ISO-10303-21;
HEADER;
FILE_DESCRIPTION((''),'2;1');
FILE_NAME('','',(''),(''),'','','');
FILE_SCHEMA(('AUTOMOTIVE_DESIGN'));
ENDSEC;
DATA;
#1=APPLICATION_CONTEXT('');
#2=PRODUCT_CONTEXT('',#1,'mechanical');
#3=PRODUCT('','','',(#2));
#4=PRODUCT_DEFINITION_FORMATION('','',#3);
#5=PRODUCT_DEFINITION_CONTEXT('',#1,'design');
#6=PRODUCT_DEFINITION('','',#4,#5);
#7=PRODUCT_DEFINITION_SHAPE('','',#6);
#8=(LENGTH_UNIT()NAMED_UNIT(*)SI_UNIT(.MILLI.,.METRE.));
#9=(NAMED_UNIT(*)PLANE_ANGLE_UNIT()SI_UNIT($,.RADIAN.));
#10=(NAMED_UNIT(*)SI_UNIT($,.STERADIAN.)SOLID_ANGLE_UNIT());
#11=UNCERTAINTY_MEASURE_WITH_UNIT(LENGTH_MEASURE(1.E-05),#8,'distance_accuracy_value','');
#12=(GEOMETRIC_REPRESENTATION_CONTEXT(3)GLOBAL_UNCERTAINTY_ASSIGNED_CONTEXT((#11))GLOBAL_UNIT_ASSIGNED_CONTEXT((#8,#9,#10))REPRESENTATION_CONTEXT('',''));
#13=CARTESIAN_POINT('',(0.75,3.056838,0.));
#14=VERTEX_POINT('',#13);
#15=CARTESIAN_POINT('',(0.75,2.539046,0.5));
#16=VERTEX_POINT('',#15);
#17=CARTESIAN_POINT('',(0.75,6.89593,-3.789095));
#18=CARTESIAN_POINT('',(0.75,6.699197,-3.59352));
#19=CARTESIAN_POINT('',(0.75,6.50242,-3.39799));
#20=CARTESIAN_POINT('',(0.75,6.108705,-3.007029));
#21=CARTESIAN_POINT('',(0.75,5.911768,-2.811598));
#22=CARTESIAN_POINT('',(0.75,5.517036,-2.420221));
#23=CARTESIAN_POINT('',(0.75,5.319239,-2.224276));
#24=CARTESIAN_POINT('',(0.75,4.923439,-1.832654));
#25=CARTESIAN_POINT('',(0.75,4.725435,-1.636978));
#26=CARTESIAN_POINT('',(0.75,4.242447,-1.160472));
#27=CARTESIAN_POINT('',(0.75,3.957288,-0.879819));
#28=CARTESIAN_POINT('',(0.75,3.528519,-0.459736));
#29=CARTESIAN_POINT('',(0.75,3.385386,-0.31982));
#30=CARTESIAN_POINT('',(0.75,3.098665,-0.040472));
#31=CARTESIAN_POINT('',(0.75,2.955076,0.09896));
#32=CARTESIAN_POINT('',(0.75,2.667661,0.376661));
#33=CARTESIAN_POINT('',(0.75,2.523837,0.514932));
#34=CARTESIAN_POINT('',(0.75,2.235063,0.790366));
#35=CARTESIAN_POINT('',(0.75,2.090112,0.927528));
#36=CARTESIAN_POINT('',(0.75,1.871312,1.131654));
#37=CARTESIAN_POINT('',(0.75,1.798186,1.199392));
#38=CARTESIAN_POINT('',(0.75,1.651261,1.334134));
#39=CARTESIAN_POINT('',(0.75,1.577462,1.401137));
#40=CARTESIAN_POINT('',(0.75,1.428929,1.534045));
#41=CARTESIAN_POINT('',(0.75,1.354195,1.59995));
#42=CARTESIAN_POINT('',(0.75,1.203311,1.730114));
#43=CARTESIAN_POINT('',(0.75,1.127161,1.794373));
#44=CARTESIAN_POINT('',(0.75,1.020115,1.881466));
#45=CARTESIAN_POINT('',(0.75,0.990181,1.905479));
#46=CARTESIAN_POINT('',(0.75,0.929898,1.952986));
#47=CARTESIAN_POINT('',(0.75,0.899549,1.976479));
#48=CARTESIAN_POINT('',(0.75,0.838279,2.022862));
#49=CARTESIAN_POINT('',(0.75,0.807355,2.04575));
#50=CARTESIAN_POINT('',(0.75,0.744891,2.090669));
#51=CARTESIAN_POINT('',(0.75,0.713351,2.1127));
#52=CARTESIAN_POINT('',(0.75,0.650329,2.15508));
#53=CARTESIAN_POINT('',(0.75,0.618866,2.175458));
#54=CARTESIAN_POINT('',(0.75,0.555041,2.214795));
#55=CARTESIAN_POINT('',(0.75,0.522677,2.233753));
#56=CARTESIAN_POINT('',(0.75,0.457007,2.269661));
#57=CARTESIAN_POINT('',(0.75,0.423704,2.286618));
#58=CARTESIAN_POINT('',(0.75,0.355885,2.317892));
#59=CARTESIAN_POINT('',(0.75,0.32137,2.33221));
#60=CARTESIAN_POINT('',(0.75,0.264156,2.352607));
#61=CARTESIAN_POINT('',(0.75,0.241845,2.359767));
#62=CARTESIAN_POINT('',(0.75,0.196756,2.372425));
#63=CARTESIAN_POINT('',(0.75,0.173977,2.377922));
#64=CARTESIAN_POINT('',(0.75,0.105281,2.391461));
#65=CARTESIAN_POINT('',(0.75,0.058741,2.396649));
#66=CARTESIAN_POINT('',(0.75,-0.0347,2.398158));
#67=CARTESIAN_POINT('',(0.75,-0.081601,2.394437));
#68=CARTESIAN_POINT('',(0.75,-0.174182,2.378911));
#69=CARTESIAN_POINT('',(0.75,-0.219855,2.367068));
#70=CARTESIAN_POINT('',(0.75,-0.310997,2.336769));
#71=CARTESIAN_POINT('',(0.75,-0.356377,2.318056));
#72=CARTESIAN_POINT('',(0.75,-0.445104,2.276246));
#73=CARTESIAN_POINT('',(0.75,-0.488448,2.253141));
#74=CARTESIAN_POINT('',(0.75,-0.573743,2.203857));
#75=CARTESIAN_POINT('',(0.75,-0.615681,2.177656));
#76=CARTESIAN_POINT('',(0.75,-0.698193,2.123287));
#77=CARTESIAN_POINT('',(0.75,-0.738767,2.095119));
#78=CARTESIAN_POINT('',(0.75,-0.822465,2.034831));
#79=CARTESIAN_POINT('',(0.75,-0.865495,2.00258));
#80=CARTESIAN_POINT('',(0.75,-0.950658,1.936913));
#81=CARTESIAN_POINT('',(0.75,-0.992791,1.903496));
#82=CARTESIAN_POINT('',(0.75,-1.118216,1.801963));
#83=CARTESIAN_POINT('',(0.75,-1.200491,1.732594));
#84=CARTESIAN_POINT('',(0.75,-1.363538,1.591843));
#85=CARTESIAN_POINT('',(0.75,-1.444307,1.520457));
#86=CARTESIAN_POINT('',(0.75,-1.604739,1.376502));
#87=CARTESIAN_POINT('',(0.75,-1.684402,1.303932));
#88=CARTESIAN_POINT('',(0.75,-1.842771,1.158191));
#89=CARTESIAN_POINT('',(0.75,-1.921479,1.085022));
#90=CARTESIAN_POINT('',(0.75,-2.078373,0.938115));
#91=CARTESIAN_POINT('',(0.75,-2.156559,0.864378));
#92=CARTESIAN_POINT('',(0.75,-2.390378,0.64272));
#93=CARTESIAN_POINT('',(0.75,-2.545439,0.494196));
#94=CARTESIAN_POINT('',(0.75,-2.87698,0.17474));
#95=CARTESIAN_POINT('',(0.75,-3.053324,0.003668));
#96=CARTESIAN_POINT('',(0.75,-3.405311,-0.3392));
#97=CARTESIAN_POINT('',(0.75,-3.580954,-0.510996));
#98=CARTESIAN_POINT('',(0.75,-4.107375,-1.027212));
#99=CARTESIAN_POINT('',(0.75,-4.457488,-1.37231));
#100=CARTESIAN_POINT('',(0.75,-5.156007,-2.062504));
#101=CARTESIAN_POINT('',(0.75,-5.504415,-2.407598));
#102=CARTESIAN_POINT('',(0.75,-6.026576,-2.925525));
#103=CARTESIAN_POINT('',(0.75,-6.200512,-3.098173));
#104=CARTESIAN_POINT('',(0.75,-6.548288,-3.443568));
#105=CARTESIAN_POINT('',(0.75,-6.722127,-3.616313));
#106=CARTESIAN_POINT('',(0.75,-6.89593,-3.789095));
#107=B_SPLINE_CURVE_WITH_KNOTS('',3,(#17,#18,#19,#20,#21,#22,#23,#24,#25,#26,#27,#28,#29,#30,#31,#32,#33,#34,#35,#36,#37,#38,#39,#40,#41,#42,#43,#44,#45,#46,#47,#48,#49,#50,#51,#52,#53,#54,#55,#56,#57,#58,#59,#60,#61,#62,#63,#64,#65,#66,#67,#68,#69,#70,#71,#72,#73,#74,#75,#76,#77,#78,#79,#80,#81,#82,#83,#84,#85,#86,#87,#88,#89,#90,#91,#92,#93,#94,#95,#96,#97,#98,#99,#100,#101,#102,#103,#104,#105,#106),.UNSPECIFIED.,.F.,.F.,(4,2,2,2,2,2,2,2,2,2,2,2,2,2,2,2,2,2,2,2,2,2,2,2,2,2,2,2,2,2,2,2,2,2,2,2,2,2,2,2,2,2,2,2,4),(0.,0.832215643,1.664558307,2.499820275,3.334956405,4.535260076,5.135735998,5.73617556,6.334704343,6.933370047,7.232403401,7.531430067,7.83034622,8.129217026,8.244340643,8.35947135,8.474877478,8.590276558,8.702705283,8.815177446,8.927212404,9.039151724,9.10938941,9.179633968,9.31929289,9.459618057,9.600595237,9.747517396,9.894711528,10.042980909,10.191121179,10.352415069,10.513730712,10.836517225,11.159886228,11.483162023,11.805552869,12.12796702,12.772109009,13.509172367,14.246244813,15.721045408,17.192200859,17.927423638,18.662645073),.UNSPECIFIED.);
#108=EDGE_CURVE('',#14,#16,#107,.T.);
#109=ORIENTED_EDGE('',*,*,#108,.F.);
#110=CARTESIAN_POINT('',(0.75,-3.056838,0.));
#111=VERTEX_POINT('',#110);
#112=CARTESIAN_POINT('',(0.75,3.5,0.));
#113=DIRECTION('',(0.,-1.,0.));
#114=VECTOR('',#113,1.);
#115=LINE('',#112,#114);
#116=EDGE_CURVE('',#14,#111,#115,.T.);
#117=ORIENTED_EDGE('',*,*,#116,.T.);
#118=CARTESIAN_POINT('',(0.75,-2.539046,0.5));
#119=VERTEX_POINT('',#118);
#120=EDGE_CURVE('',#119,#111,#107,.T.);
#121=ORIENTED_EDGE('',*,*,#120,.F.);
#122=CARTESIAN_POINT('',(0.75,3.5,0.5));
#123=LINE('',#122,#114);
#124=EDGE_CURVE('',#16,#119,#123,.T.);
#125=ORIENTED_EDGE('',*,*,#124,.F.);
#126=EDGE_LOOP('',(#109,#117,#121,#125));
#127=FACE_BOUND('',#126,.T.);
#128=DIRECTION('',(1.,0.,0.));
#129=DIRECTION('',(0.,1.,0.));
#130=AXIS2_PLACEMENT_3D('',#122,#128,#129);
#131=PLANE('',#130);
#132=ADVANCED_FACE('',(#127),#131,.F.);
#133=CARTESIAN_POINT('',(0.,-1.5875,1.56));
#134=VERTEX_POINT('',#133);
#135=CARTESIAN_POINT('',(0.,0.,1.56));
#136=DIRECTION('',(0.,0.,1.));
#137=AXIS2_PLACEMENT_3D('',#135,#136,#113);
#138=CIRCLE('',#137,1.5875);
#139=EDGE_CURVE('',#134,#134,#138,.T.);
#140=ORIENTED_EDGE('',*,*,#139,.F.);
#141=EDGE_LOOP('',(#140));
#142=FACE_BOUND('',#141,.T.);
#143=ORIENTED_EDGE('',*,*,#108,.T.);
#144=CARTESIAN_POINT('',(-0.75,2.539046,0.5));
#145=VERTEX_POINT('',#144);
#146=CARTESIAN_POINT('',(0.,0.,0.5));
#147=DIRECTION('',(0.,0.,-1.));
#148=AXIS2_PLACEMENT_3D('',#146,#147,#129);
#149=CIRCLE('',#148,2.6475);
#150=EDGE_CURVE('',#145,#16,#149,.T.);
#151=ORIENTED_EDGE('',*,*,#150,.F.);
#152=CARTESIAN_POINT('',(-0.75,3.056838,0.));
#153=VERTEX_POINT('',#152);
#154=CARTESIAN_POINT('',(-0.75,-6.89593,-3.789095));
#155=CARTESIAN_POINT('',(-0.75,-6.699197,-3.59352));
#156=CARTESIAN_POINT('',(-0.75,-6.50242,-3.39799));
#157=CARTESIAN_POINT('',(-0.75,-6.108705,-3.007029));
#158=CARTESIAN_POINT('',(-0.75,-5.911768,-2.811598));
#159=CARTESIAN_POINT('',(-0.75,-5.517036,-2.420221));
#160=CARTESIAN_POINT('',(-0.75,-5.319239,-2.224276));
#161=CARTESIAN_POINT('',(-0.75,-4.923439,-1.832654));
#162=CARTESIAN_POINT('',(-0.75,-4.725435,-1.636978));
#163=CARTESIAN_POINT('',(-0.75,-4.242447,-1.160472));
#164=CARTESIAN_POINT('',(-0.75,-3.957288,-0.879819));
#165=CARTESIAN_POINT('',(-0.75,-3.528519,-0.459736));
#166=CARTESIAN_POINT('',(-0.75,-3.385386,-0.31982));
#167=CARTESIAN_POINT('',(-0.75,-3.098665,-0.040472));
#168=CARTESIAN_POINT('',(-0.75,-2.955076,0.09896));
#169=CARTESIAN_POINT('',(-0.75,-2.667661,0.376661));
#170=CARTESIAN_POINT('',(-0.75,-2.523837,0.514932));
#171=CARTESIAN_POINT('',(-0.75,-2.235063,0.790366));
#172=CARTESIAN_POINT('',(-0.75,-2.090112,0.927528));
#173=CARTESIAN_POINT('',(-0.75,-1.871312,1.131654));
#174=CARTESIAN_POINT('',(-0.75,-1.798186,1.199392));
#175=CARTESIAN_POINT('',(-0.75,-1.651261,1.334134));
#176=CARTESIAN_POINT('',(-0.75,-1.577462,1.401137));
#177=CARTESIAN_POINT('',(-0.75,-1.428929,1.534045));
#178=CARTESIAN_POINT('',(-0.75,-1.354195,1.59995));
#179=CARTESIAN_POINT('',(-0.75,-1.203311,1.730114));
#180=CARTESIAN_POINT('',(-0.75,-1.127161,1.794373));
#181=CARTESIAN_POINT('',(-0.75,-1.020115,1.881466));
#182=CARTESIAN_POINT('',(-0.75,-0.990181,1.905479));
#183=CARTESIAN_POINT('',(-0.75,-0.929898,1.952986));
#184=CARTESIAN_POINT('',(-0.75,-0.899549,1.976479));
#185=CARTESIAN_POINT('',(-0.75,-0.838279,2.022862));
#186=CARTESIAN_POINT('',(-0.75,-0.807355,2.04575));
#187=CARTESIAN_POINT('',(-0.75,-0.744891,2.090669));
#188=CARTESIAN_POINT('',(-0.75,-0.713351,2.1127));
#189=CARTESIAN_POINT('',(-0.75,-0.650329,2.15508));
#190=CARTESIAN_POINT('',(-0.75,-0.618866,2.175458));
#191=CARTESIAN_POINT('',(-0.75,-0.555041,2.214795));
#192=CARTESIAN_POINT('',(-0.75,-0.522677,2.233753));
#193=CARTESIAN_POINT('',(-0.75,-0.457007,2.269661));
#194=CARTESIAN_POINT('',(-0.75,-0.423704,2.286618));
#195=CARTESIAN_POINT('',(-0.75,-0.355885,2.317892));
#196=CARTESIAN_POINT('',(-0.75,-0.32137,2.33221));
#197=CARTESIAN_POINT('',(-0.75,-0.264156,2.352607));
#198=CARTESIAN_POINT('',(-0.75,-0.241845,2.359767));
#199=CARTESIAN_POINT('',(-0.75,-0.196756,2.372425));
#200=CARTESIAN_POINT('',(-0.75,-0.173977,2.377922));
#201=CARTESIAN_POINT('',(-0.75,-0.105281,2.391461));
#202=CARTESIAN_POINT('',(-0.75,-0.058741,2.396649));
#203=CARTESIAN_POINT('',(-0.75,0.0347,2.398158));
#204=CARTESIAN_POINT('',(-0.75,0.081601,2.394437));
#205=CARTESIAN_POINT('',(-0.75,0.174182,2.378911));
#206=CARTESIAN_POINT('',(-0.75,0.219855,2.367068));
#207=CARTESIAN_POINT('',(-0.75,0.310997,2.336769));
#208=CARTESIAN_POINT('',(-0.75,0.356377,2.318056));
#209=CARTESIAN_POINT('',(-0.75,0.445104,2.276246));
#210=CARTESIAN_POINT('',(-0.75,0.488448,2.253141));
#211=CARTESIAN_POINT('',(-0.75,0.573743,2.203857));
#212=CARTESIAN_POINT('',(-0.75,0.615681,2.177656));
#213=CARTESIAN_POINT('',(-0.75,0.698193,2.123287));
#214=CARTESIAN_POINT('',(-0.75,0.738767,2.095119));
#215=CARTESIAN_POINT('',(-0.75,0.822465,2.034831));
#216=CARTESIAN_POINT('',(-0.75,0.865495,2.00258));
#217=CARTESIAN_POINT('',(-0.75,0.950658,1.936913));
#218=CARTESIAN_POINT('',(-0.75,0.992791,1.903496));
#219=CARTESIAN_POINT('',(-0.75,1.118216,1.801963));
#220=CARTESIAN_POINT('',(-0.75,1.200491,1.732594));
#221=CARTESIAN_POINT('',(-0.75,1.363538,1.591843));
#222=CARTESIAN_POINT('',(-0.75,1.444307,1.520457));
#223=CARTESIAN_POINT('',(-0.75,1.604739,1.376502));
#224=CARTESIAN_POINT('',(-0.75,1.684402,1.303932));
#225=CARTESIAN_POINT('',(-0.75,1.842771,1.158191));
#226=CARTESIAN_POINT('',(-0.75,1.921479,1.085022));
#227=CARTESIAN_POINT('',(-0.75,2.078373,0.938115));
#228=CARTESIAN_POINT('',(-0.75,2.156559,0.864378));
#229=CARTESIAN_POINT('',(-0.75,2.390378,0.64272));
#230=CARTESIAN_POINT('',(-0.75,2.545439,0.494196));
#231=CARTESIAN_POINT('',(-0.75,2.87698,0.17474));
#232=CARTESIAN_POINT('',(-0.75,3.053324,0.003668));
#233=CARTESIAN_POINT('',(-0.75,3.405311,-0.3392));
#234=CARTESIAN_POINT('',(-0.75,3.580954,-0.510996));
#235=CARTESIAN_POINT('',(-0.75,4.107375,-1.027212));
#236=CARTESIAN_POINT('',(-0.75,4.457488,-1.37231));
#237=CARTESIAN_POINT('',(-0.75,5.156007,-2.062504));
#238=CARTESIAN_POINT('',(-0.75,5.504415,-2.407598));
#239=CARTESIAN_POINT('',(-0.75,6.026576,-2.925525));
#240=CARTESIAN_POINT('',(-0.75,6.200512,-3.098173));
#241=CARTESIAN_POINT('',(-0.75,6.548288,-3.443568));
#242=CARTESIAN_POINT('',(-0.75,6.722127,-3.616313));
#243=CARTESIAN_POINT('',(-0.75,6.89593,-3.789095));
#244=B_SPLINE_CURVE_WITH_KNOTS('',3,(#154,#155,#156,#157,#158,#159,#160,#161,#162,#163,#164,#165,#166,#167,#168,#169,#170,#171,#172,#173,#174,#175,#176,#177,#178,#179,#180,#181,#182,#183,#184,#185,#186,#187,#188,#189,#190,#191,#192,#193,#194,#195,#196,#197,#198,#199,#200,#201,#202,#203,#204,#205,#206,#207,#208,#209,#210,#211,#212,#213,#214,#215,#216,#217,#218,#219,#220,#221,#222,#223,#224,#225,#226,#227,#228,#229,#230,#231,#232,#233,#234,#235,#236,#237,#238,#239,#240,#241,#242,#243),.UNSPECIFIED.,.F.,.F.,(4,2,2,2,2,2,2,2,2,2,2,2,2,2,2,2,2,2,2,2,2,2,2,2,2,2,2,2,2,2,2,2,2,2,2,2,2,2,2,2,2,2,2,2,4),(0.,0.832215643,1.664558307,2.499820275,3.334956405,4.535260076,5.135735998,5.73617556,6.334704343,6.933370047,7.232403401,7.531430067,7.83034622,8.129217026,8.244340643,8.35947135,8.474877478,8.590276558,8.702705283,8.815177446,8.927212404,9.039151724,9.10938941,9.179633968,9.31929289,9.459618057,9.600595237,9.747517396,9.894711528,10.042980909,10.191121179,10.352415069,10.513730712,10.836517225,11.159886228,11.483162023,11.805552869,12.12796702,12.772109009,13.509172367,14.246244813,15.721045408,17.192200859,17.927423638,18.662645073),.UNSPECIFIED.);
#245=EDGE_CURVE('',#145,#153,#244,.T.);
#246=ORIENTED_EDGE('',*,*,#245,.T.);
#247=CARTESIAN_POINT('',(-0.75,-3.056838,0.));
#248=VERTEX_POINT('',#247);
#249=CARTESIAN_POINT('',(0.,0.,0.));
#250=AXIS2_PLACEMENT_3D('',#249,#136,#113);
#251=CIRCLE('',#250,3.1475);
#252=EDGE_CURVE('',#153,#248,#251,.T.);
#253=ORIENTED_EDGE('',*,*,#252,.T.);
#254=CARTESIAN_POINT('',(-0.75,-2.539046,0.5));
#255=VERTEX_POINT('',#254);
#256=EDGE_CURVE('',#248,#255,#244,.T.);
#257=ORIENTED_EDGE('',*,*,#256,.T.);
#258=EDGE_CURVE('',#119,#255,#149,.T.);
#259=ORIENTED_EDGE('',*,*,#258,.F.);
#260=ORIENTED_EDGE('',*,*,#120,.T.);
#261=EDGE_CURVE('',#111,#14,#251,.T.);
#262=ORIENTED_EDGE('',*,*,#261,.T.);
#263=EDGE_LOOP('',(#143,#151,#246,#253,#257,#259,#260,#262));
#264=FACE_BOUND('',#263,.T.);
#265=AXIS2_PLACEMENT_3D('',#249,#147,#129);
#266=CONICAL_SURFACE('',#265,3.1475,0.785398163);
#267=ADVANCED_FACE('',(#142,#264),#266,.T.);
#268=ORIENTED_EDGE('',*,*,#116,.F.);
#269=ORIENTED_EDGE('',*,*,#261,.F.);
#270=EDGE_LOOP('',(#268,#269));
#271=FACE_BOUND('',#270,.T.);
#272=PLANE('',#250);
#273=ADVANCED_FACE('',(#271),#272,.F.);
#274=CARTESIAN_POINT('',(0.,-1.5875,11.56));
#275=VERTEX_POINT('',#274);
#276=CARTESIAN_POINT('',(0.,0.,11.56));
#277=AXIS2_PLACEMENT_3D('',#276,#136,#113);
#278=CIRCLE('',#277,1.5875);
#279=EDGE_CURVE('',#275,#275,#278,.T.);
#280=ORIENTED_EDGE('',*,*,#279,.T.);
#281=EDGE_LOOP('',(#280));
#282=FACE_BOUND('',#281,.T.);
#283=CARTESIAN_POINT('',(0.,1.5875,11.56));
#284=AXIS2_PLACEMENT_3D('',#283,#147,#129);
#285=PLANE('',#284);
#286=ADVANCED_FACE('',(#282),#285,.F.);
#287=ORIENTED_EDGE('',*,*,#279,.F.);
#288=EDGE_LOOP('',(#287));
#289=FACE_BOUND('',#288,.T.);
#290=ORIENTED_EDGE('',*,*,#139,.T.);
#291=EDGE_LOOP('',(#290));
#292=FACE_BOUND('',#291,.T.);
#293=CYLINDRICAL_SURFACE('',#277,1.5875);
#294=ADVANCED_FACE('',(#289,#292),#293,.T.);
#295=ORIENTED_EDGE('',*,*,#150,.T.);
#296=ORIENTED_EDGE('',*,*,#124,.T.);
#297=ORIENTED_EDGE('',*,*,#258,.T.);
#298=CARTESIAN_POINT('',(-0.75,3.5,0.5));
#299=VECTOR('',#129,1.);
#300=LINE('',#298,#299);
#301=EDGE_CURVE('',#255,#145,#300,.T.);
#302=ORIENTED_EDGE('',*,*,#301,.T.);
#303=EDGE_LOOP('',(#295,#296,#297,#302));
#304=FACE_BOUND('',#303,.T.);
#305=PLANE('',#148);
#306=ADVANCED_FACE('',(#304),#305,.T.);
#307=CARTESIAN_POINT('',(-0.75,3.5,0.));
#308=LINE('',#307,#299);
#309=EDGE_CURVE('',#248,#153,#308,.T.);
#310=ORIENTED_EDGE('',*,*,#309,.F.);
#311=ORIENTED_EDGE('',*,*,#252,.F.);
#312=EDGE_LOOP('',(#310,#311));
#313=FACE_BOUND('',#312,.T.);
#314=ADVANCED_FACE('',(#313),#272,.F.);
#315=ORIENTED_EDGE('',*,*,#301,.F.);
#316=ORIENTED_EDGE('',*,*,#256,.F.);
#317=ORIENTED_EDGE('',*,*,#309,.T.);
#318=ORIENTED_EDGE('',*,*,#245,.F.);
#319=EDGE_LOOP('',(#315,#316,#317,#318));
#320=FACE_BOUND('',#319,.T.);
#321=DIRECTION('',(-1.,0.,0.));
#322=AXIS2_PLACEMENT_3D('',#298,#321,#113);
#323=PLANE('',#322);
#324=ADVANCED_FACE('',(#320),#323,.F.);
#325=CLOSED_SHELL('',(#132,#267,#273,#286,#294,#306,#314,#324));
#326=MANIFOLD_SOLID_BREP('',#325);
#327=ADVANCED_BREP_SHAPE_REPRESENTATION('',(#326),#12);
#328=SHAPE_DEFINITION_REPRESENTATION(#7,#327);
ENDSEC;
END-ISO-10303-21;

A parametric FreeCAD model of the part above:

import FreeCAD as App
import Part
import Sketcher

V = App.Vector
Q = App.Units.Quantity


def add_polygon(sketch, points):
    """Adds a closed chain of lines whose ends are joined by coincident constraints."""
    first, n = sketch.GeometryCount, len(points)
    for a, b in zip(points, points[1:] + points[:1]):
        sketch.addGeometry(Part.LineSegment(App.Vector(*a, 0), App.Vector(*b, 0)), False)
    for i in range(n):
        sketch.addConstraint(Sketcher.Constraint("Coincident", first + i, 2, first + (i + 1) % n, 1))

doc = App.newDocument("Part")
body = doc.addObject("PartDesign::Body", "Body")

# Sketch on YZ plane
sketch1 = body.newObject("Sketcher::SketchObject", "Sketch")
sketch1.AttachmentSupport = (doc.getObject("YZ_Plane"), [""])
sketch1.MapMode = "FlatFace"
add_polygon(sketch1, [(0, 0), (3.1475, 0), (1.5875, 1.56), (1.5875, 11.56), (0, 11.56)])  # lines 0-4
sketch1.addConstraint(Sketcher.Constraint("Horizontal", 0))
sketch1.addConstraint(Sketcher.Constraint("Vertical", 2))
sketch1.addConstraint(Sketcher.Constraint("Horizontal", 3))
sketch1.addConstraint(Sketcher.Constraint("Vertical", 4))
sketch1.addConstraint(Sketcher.Constraint("Coincident", 4, 2, -1, 1))
sketch1.addConstraint(Sketcher.Constraint("DistanceY", 2, 1, 2, 2, Q("10 mm")))
sketch1.addConstraint(Sketcher.Constraint("Angle", 1, Q("135 deg")))
sketch1.addConstraint(Sketcher.Constraint("DistanceY", 4, 2, 4, 1, Q("11.56 mm")))
sketch1.addConstraint(Sketcher.Constraint("DistanceX", 0, 1, 0, 2, Q("3.1475 mm")))
revolution = body.newObject("PartDesign::Revolution", "Revolution")
revolution.Profile = sketch1
revolution.ReferenceAxis = (sketch1, ["V_Axis"])
revolution.Angle = 360

# Sketch on XY plane
sketch2 = body.newObject("Sketcher::SketchObject", "Sketch001")
sketch2.AttachmentSupport = (doc.getObject("XY_Plane"), [""])
sketch2.MapMode = "FlatFace"
add_polygon(sketch2, [(0.75, 3.5), (0.75, -3.5), (-0.75, -3.5), (-0.75, 3.5)])  # lines 0-3
sketch2.addConstraint(Sketcher.Constraint("Vertical", 0))
sketch2.addConstraint(Sketcher.Constraint("Horizontal", 1))
sketch2.addConstraint(Sketcher.Constraint("Vertical", 2))
sketch2.addConstraint(Sketcher.Constraint("Horizontal", 3))
sketch2.addConstraint(Sketcher.Constraint("Symmetric", 0, 2, 2, 2, -1, 1))
sketch2.addConstraint(Sketcher.Constraint("DistanceY", 0, 2, 0, 1, Q("7 mm")))
sketch2.addConstraint(Sketcher.Constraint("DistanceX", 1, 2, 1, 1, Q("1.5 mm")))
pocket1 = body.newObject("PartDesign::Pocket", "Pocket")
pocket1.Profile = sketch2
pocket1.Length = 0.5
pocket1.Reversed = True

doc.recompute()
